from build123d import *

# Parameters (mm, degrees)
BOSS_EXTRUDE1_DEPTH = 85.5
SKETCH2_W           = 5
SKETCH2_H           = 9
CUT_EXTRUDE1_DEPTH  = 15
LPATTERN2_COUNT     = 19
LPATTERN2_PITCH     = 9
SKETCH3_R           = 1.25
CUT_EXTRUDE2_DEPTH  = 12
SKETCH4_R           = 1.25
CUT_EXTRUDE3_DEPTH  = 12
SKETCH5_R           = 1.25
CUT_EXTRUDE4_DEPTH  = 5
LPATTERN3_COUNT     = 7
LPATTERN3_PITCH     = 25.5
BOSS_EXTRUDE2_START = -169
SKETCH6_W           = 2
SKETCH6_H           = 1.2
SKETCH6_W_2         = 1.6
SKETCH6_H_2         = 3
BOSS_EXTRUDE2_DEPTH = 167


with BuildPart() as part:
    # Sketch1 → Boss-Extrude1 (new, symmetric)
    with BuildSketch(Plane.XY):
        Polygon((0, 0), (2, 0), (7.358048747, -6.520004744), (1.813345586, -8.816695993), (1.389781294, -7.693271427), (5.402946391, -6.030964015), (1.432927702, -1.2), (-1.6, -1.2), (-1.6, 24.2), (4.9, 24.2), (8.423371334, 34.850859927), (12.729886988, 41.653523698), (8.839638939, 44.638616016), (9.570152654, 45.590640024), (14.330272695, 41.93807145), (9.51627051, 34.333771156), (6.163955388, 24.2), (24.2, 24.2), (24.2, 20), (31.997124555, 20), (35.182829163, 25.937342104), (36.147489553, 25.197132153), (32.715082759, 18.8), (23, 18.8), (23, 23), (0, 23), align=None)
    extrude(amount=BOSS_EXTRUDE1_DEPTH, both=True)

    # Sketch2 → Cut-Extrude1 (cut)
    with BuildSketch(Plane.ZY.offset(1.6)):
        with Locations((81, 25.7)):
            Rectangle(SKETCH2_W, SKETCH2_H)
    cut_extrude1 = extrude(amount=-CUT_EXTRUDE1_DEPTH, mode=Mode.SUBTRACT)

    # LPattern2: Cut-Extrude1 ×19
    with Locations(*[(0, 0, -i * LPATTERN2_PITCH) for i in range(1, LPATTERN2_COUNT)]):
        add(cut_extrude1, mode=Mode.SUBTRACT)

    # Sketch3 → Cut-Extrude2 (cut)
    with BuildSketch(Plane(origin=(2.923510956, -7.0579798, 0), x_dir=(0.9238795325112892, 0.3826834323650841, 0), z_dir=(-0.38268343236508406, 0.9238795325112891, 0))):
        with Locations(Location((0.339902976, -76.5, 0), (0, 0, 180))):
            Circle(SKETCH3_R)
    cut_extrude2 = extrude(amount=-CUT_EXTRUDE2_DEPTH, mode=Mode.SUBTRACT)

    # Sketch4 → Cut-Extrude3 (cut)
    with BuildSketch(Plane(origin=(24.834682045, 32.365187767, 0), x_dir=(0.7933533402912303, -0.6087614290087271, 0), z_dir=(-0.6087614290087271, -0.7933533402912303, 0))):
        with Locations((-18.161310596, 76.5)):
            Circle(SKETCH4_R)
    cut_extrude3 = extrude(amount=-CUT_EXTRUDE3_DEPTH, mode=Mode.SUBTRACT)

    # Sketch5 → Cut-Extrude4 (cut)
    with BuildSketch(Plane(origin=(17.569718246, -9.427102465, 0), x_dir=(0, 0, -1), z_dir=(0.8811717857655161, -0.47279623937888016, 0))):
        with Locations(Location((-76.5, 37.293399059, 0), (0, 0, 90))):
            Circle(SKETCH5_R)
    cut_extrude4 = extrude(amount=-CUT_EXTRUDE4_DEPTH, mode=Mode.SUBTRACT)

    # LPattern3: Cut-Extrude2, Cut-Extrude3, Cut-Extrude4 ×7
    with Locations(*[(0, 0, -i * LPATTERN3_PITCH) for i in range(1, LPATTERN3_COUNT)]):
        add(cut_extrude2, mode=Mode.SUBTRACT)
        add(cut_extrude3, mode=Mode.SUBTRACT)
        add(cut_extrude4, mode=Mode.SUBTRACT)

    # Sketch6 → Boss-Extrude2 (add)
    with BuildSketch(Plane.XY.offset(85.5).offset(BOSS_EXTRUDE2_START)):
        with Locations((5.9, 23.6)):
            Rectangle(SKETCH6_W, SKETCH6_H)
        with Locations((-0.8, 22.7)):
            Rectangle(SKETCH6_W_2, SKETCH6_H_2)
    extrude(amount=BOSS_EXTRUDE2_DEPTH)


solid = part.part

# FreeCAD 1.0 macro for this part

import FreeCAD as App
import Part
import Sketcher
Q = App.Units.Quantity


def add_polygon(sketch, points):
    """Adds a closed chain of lines whose ends are joined by coincident constraints."""
    first, n = sketch.GeometryCount, len(points)
    for a, b in zip(points, points[1:] + points[:1]):
        sketch.addGeometry(Part.LineSegment(App.Vector(*a, 0), App.Vector(*b, 0)), False)
    for i in range(n):
        sketch.addConstraint(Sketcher.Constraint("Coincident", first + i, 2, first + (i + 1) % n, 1))

doc = App.newDocument("Part")
body = doc.addObject("PartDesign::Body", "Body")

# Sketch on XY plane
sketch1 = body.newObject("Sketcher::SketchObject", "Sketch")
sketch1.AttachmentSupport = (doc.getObject("XY_Plane"), [""])
sketch1.MapMode = "FlatFace"
add_polygon(sketch1, [(2, 0), (0, 0), (0, 23), (23, 23), (23, 18.8), (32.7, 18.8), (36.1, 25.2), (35.2, 25.9), (32, 20), (24.2, 20), (24.2, 24.2), (6.2, 24.2), (9.5, 34.3), (14.3, 41.9), (9.6, 45.6), (8.8, 44.6), (12.7, 41.7), (8.4, 34.9), (4.9, 24.2), (-1.6, 24.2), (-1.6, -1.2), (1.4, -1.2), (5.4, -6), (1.4, -7.7), (1.8, -8.8), (7.4, -6.5)])  # lines 0-25
sketch1.addConstraint(Sketcher.Constraint("Horizontal", 0))
sketch1.addConstraint(Sketcher.Constraint("Vertical", 1))
sketch1.addConstraint(Sketcher.Constraint("Horizontal", 2))
sketch1.addConstraint(Sketcher.Constraint("Vertical", 3))
sketch1.addConstraint(Sketcher.Constraint("Horizontal", 4))
sketch1.addConstraint(Sketcher.Constraint("Horizontal", 8))
sketch1.addConstraint(Sketcher.Constraint("Vertical", 9))
sketch1.addConstraint(Sketcher.Constraint("Horizontal", 10))
sketch1.addConstraint(Sketcher.Constraint("Horizontal", 18))
sketch1.addConstraint(Sketcher.Constraint("Vertical", 19))
sketch1.addConstraint(Sketcher.Constraint("Horizontal", 20))
sketch1.addConstraint(Sketcher.Constraint("Coincident", 0, 2, -1, 1))
sketch1.addConstraint(Sketcher.Constraint("Parallel", 5, 7))
sketch1.addConstraint(Sketcher.Constraint("Parallel", 6, 13))
sketch1.addConstraint(Sketcher.Constraint("Perpendicular", 13, 14))
sketch1.addConstraint(Sketcher.Constraint("Perpendicular", 14, 15))
sketch1.addConstraint(Sketcher.Constraint("Parallel", 12, 16))
sketch1.addConstraint(Sketcher.Constraint("Parallel", 11, 17))
sketch1.addConstraint(Sketcher.Constraint("Parallel", 22, 24))
sketch1.addConstraint(Sketcher.Constraint("Parallel", 21, 25))
sketch1.addConstraint(Sketcher.Constraint("Horizontal", 10, 2, 17, 2))
sketch1.addConstraint(Sketcher.Constraint("Equal", 2, 1))
sketch1.addConstraint(Sketcher.Constraint("Equal", 3, 9))
sketch1.addConstraint(Sketcher.Constraint("DistanceX", 0, 2, 0, 1, 2.0))
sketch1.addConstraint(Sketcher.Constraint("DistanceX", 2, 1, 2, 2, 23.0))
sketch1.addConstraint(Sketcher.Constraint("Distance", 12, 9.0))
sketch1.addConstraint(Sketcher.Constraint("Distance", 13, 6.0))
sketch1.addConstraint(Sketcher.Constraint("DistanceX", 18, 2, 18, 1, 6.5))
sketch1.addConstraint(Sketcher.Constraint("DistanceY", 3, 2, 3, 1, 4.2))
sketch1.addConstraint(Sketcher.Constraint("DistanceY", 19, 2, 19, 1, 25.4))
sketch1.addConstraint(Sketcher.Constraint("DistanceY", -1, 1, 7, 2, 20.0))
sketch1.addConstraint(Sketcher.Constraint("Angle", 6, Q("142.5 deg")))
sketch1.addConstraint(Sketcher.Constraint("Angle", 22, Q("-157.5 deg")))
sketch1.addConstraint(Sketcher.Constraint("Distance", 14, 1.2))
sketch1.addConstraint(Sketcher.Constraint("DistanceX", -1, 1, 8, 2, 24.2))
sketch1.addConstraint(Sketcher.Constraint("DistanceX", -1, 1, 17, 2, 4.9))
sketch1.addConstraint(Sketcher.Constraint("Distance", 5, 7.259801))
sketch1.addConstraint(Sketcher.Constraint("DistanceY", 11, 2, 12, 2, 7.6043))
sketch1.addConstraint(Sketcher.Constraint("DistanceX", 16, 2, 11, 2, 1.092899))
sketch1.addConstraint(Sketcher.Constraint("DistanceX", 23, 2, 21, 2, 3.589601))
sketch1.addConstraint(Sketcher.Constraint("Distance", 15, 4.90355))
sketch1.addConstraint(Sketcher.Constraint("Distance", 17, 11.21851))
sketch1.addConstraint(Sketcher.Constraint("Distance", 21, 6.25294))
sketch1.addConstraint(Sketcher.Constraint("Distance", 22, 4.343819))
sketch1.addConstraint(Sketcher.Constraint("Distance", 23, 1.20062))
sketch1.addConstraint(Sketcher.Constraint("DistanceX", 4, 1, 4, 2, 9.715083))
sketch1.addConstraint(Sketcher.Constraint("DistanceX", 8, 2, 8, 1, 7.797125))
sketch1.addConstraint(Sketcher.Constraint("DistanceX", 10, 2, 10, 1, 18.036045))
sketch1.addConstraint(Sketcher.Constraint("DistanceX", 20, 1, 20, 2, 3.032928))
sketch1.addConstraint(Sketcher.Constraint("DistanceX", -1, 1, 5, 2, 36.14749))
sketch1.addConstraint(Sketcher.Constraint("DistanceX", -1, 1, 22, 2, 1.389781))
pad1 = body.newObject("PartDesign::Pad", "Pad")
pad1.Profile = sketch1
pad1.Length = 171
pad1.Midplane = True

# Sketch on YZ plane
sketch2 = body.newObject("Sketcher::SketchObject", "Sketch001")
sketch2.AttachmentSupport = (doc.getObject("YZ_Plane"), [""])
sketch2.MapMode = "FlatFace"
sketch2.AttachmentOffset = App.Placement(App.Vector(0, 0, -1.6), App.Rotation())
add_polygon(sketch2, [(30, 78), (21, 78), (21, 84), (30, 84)])  # lines 0-3
sketch2.addConstraint(Sketcher.Constraint("Horizontal", 0))
sketch2.addConstraint(Sketcher.Constraint("Vertical", 1))
sketch2.addConstraint(Sketcher.Constraint("Horizontal", 2))
sketch2.addConstraint(Sketcher.Constraint("Vertical", 3))
sketch2.addConstraint(Sketcher.Constraint("DistanceX", 0, 2, 0, 1, 9.0))
sketch2.addConstraint(Sketcher.Constraint("DistanceY", 1, 1, 1, 2, 5.0))
sketch2.addConstraint(Sketcher.Constraint("DistanceX", -1, 1, 0, 2, 21.2))
sketch2.addConstraint(Sketcher.Constraint("DistanceY", -1, 1, 0, 2, 78.5))
pocket1 = body.newObject("PartDesign::Pocket", "Pocket")
pocket1.Profile = sketch2
pocket1.Length = 15
pocket1.Reversed = True
doc.recompute()

linearpattern = body.newObject("PartDesign::LinearPattern", "LinearPattern")
linearpattern.Originals = [pocket1]
linearpattern.Direction = (doc.getObject("Z_Axis"), [""])
linearpattern.Mode = "offset"
linearpattern.Offset = 9
linearpattern.Occurrences = 19
linearpattern.Reversed = True
body.Tip = linearpattern

# Sketch on an angled plane
sketch3 = body.newObject("Sketcher::SketchObject", "Sketch002")
sketch3.Placement = App.Placement(App.Vector(2.923511, -7.05798, 0), App.Rotation(App.Vector(0.923879533, 0.382683432, 0), App.Vector(0, 0, -1.000000001), App.Vector(-0.382683432, 0.923879533, 0), "ZXY"))
sketch3.addGeometry(Part.Circle(App.Vector(0.3, -76.5, 0), App.Vector(0, 0, 1), 1.2), False)
sketch3.addConstraint(Sketcher.Constraint("Diameter", 0, 2.5))
sketch3.addConstraint(Sketcher.Constraint("DistanceY", 0, 3, -1, 1, 76.5))
sketch3.addConstraint(Sketcher.Constraint("DistanceX", -1, 1, 0, 3, 0.339903))
pocket2 = body.newObject("PartDesign::Pocket", "Pocket001")
pocket2.Profile = sketch3
pocket2.Length = 12

# Sketch on an angled plane
sketch4 = body.newObject("Sketcher::SketchObject", "Sketch003")
sketch4.Placement = App.Placement(App.Vector(24.834682, 32.365188, 0), App.Rotation(App.Vector(0.79335334, -0.608761429, 0), App.Vector(0, 0, 1), App.Vector(-0.608761429, -0.79335334, 0), "ZXY"))
sketch4.addGeometry(Part.Circle(App.Vector(-18.2, 76.5, 0), App.Vector(0, 0, 1), 1.2), False)
sketch4.addConstraint(Sketcher.Constraint("Diameter", 0, 2.5))
sketch4.addConstraint(Sketcher.Constraint("DistanceY", -1, 1, 0, 3, 76.5))
sketch4.addConstraint(Sketcher.Constraint("DistanceX", 0, 3, -1, 1, 18.161311))
pocket3 = body.newObject("PartDesign::Pocket", "Pocket002")
pocket3.Profile = sketch4
pocket3.Length = 12

# Sketch on an angled plane
sketch5 = body.newObject("Sketcher::SketchObject", "Sketch004")
sketch5.Placement = App.Placement(App.Vector(17.569718, -9.427102, 0), App.Rotation(App.Vector(0, 0, -1), App.Vector(0.472796239, 0.881171786, 0), App.Vector(0.881171786, -0.472796239, 0), "ZXY"))
sketch5.addGeometry(Part.Circle(App.Vector(-76.5, 37.3, 0), App.Vector(0, 0, 1), 1.2), False)
sketch5.addConstraint(Sketcher.Constraint("Diameter", 0, 2.5))
sketch5.addConstraint(Sketcher.Constraint("DistanceX", 0, 3, -1, 1, 76.5))
sketch5.addConstraint(Sketcher.Constraint("DistanceY", -1, 1, 0, 3, 37.293399))
pocket4 = body.newObject("PartDesign::Pocket", "Pocket003")
pocket4.Profile = sketch5
pocket4.Length = 5
doc.recompute()

linearpattern2 = body.newObject("PartDesign::LinearPattern", "LinearPattern001")
linearpattern2.Originals = [pocket2, pocket3, pocket4]
linearpattern2.Direction = (doc.getObject("Z_Axis"), [""])
linearpattern2.Mode = "offset"
linearpattern2.Offset = 25.5
linearpattern2.Occurrences = 7
linearpattern2.Reversed = True
body.Tip = linearpattern2

# Sketch on XY plane
sketch6 = body.newObject("Sketcher::SketchObject", "Sketch005")
sketch6.AttachmentSupport = (doc.getObject("XY_Plane"), [""])
sketch6.MapMode = "FlatFace"
sketch6.AttachmentOffset = App.Placement(App.Vector(0, 0, -83.5), App.Rotation())
add_polygon(sketch6, [(4.9, 24.2), (4.9, 23), (6.9, 23), (6.9, 24.2)])  # lines 0-3
add_polygon(sketch6, [(-1.6, 24.2), (-1.6, 21.2), (0, 21.2), (0, 24.2)])  # lines 4-7
sketch6.addConstraint(Sketcher.Constraint("Vertical", 0))
sketch6.addConstraint(Sketcher.Constraint("Horizontal", 1))
sketch6.addConstraint(Sketcher.Constraint("Vertical", 2))
sketch6.addConstraint(Sketcher.Constraint("Horizontal", 3))
sketch6.addConstraint(Sketcher.Constraint("Vertical", 4))
sketch6.addConstraint(Sketcher.Constraint("Horizontal", 5))
sketch6.addConstraint(Sketcher.Constraint("Vertical", 6))
sketch6.addConstraint(Sketcher.Constraint("Horizontal", 7))
sketch6.addConstraint(Sketcher.Constraint("PointOnObject", 5, 2, -2))
sketch6.addConstraint(Sketcher.Constraint("Horizontal", 3, 2, 6, 2))
sketch6.addConstraint(Sketcher.Constraint("DistanceX", 1, 1, 1, 2, 2.0))
sketch6.addConstraint(Sketcher.Constraint("DistanceY", 4, 2, 4, 1, 3.0))
sketch6.addConstraint(Sketcher.Constraint("DistanceX", 5, 1, 5, 2, 1.6))
sketch6.addConstraint(Sketcher.Constraint("DistanceY", 0, 2, 0, 1, 1.2))
sketch6.addConstraint(Sketcher.Constraint("DistanceY", -1, 1, 0, 2, 23.0))
sketch6.addConstraint(Sketcher.Constraint("DistanceX", -1, 1, 0, 2, 4.9))
pad2 = body.newObject("PartDesign::Pad", "Pad001")
pad2.Profile = sketch6
pad2.Length = 167

doc.recompute()
